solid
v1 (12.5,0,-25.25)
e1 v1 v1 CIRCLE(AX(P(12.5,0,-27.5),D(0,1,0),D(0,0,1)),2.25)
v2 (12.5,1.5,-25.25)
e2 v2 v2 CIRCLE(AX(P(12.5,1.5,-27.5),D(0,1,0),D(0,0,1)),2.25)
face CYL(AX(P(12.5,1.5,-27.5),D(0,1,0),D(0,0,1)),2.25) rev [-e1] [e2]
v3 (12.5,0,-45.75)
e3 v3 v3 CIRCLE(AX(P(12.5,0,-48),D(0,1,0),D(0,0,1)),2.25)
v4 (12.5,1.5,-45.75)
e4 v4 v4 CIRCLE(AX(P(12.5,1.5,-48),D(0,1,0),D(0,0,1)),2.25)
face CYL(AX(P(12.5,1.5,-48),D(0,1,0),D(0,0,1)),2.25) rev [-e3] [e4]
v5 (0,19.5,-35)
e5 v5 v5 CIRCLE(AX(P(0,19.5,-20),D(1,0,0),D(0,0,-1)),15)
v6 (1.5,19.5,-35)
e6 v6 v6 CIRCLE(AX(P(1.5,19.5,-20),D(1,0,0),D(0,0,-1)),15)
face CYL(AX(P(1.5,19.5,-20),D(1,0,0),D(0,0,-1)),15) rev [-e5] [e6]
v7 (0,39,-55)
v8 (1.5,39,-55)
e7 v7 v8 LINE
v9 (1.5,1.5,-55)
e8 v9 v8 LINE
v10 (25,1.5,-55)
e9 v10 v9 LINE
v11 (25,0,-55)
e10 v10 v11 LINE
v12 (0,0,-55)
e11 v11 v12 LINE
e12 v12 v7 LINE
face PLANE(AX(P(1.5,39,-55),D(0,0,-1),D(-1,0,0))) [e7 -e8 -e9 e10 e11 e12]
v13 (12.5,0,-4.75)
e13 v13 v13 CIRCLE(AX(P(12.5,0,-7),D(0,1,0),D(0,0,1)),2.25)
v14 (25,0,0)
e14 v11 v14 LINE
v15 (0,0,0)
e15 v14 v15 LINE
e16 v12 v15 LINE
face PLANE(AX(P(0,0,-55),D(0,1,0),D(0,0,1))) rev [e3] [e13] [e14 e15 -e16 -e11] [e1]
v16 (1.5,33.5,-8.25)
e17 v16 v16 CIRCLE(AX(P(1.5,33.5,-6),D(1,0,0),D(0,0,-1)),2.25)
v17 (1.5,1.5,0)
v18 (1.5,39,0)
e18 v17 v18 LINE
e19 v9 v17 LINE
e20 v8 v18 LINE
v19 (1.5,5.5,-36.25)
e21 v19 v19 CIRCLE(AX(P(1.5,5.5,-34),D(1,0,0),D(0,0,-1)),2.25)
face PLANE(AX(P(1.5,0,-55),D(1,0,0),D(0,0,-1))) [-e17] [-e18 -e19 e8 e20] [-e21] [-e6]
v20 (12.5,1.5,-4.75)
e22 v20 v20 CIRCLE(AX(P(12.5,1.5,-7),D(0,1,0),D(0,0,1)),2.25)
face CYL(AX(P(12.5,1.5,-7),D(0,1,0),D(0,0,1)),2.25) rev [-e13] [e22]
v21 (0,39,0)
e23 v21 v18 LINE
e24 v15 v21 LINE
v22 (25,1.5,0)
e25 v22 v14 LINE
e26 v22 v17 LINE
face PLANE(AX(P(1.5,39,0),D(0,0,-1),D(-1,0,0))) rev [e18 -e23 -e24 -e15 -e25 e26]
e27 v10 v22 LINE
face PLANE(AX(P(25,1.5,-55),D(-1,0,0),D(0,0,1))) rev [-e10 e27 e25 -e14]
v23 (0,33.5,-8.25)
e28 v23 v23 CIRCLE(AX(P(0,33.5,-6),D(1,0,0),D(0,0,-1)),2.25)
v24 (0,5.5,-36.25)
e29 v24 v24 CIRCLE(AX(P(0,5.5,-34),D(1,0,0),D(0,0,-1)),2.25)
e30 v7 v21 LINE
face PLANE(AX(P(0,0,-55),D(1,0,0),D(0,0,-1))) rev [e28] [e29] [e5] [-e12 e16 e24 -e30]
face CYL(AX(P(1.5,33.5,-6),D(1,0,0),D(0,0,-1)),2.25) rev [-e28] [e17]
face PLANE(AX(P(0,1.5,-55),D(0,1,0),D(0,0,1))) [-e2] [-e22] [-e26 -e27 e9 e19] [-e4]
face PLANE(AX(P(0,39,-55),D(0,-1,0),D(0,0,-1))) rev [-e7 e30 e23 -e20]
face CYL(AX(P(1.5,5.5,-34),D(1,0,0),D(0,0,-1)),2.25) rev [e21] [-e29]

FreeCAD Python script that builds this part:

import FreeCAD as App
import Part
import Sketcher
from FreeCAD import Vector
Q = App.Units.Quantity

doc = App.newDocument("Part")
body = doc.addObject("PartDesign::Body", "Body")

sketch1 = doc.addObject("Sketcher::SketchObject", "Sketch")
body.addObject(sketch1)
sketch1.AttachmentSupport = (doc.XY_Plane, [""])
sketch1.MapMode = "FlatFace"
sketch1.addGeometry([
    Part.LineSegment(Vector(0, 39, 0), Vector(0, 0, 0)),
    Part.LineSegment(Vector(0, 0, 0), Vector(25, 0, 0)),
    Part.LineSegment(Vector(25, 0, 0), Vector(25, 1.5, 0)),
    Part.LineSegment(Vector(25, 1.5, 0), Vector(1.5, 1.5, 0)),
    Part.LineSegment(Vector(1.5, 1.5, 0), Vector(1.5, 39, 0)),
    Part.LineSegment(Vector(1.5, 39, 0), Vector(0, 39, 0)),
], False)
sketch1.addConstraint([
    Sketcher.Constraint("Coincident", 0, 2, 1, 1),
    Sketcher.Constraint("Coincident", 1, 2, 2, 1),
    Sketcher.Constraint("Coincident", 2, 2, 3, 1),
    Sketcher.Constraint("Coincident", 3, 2, 4, 1),
    Sketcher.Constraint("Coincident", 4, 2, 5, 1),
    Sketcher.Constraint("Coincident", 5, 2, 0, 1),
    Sketcher.Constraint("Vertical", 0),
    Sketcher.Constraint("Horizontal", 1),
    Sketcher.Constraint("Vertical", 2),
    Sketcher.Constraint("Horizontal", 3),
    Sketcher.Constraint("Vertical", 4),
    Sketcher.Constraint("Horizontal", 5),
    Sketcher.Constraint("Coincident", 0, 2, -1, 1),
    Sketcher.Constraint("Equal", 5, 2),
    Sketcher.Constraint("DistanceX", 1, 1, 1, 2, Q("25 mm")),
    Sketcher.Constraint("DistanceY", 0, 2, 0, 1, Q("39 mm")),
    Sketcher.Constraint("DistanceX", 3, 2, 3, 1, Q("23.5 mm")),
])
pad1 = doc.addObject("PartDesign::Pad", "Pad")
body.addObject(pad1)
pad1.Profile = sketch1
pad1.Length = 55
pad1.Reversed = True

sketch2 = doc.addObject("Sketcher::SketchObject", "Sketch001")
body.addObject(sketch2)
sketch2.AttachmentSupport = (doc.XZ_Plane, [""])
sketch2.MapMode = "FlatFace"
sketch2.AttachmentOffset = App.Placement(Vector(0, 0, -1.5), App.Rotation())
sketch2.addGeometry([
    Part.Circle(Vector(12.5, -7, 0), Vector(0, 0, 1), 2.2),
    Part.Circle(Vector(12.5, -27.5, 0), Vector(0, 0, 1), 2.2),
    Part.Circle(Vector(12.5, -48, 0), Vector(0, 0, 1), 2.2),
], False)
sketch2.addConstraint([
    Sketcher.Constraint("Equal", 0, 1),
    Sketcher.Constraint("Equal", 1, 2),
    Sketcher.Constraint("Vertical", 0, 3, 1, 3),
    Sketcher.Constraint("Vertical", 1, 3, 2, 3),
    Sketcher.Constraint("Diameter", 0, Q("4.5 mm")),
    Sketcher.Constraint("DistanceY", 0, 3, -1, 1, Q("7 mm")),
    Sketcher.Constraint("DistanceY", 2, 3, -1, 1, Q("48 mm")),
    Sketcher.Constraint("DistanceX", -1, 1, 0, 3, Q("12.5 mm")),
    Sketcher.Constraint("DistanceY", 1, 3, -1, 1, Q("27.5 mm")),
])
doc.recompute()
hole = doc.addObject("PartDesign::Hole", "Hole")
body.addObject(hole)
hole.Profile = sketch2
hole.ThreadType = "None"
hole.Diameter = 4.5
hole.DepthType = "ThroughAll"
hole.Reversed = True

sketch3 = doc.addObject("Sketcher::SketchObject", "Sketch002")
body.addObject(sketch3)
sketch3.AttachmentSupport = (doc.YZ_Plane, [""])
sketch3.MapMode = "FlatFace"
sketch3.AttachmentOffset = App.Placement(Vector(0, 0, 1.5), App.Rotation())
sketch3.addGeometry([
    Part.Circle(Vector(33.5, -6, 0), Vector(0, 0, 1), 2.2),
    Part.Circle(Vector(5.5, -34, 0), Vector(0, 0, 1), 2.2),
], False)
sketch3.addConstraint([
    Sketcher.Constraint("Equal", 0, 1),
    Sketcher.Constraint("Diameter", 0, Q("4.5 mm")),
    Sketcher.Constraint("DistanceY", 0, 3, -1, 1, Q("6 mm")),
    Sketcher.Constraint("DistanceY", 1, 3, -1, 1, Q("34 mm")),
    Sketcher.Constraint("DistanceX", 1, 3, 0, 3, Q("28 mm")),
    Sketcher.Constraint("DistanceX", -1, 1, 0, 3, Q("33.5 mm")),
])
doc.recompute()
hole2 = doc.addObject("PartDesign::Hole", "Hole001")
body.addObject(hole2)
hole2.Profile = sketch3
hole2.ThreadType = "None"
hole2.Diameter = 4.5
hole2.DepthType = "ThroughAll"

sketch4 = doc.addObject("Sketcher::SketchObject", "Sketch003")
body.addObject(sketch4)
sketch4.AttachmentSupport = (doc.YZ_Plane, [""])
sketch4.MapMode = "FlatFace"
sketch4.AttachmentOffset = App.Placement(Vector(0, 0, 1.5), App.Rotation())
sketch4.addGeometry(Part.Circle(Vector(20, -20, 0), Vector(0, 0, 1), 15), False)
sketch4.addConstraint([
    Sketcher.Constraint("Diameter", 0, Q("30 mm")),
    Sketcher.Constraint("DistanceY", 0, 3, -1, 1, Q("20 mm")),
    Sketcher.Constraint("DistanceX", -1, 1, 0, 3, Q("19.5 mm")),
])
doc.recompute()
hole3 = doc.addObject("PartDesign::Hole", "Hole002")
body.addObject(hole3)
hole3.Profile = sketch4
hole3.ThreadType = "None"
hole3.Diameter = 30
hole3.DepthType = "Dimension"
hole3.Depth = 1.5
hole3.DrillPoint = "Angled"
hole3.DrillPointAngle = 118

doc.recompute()
